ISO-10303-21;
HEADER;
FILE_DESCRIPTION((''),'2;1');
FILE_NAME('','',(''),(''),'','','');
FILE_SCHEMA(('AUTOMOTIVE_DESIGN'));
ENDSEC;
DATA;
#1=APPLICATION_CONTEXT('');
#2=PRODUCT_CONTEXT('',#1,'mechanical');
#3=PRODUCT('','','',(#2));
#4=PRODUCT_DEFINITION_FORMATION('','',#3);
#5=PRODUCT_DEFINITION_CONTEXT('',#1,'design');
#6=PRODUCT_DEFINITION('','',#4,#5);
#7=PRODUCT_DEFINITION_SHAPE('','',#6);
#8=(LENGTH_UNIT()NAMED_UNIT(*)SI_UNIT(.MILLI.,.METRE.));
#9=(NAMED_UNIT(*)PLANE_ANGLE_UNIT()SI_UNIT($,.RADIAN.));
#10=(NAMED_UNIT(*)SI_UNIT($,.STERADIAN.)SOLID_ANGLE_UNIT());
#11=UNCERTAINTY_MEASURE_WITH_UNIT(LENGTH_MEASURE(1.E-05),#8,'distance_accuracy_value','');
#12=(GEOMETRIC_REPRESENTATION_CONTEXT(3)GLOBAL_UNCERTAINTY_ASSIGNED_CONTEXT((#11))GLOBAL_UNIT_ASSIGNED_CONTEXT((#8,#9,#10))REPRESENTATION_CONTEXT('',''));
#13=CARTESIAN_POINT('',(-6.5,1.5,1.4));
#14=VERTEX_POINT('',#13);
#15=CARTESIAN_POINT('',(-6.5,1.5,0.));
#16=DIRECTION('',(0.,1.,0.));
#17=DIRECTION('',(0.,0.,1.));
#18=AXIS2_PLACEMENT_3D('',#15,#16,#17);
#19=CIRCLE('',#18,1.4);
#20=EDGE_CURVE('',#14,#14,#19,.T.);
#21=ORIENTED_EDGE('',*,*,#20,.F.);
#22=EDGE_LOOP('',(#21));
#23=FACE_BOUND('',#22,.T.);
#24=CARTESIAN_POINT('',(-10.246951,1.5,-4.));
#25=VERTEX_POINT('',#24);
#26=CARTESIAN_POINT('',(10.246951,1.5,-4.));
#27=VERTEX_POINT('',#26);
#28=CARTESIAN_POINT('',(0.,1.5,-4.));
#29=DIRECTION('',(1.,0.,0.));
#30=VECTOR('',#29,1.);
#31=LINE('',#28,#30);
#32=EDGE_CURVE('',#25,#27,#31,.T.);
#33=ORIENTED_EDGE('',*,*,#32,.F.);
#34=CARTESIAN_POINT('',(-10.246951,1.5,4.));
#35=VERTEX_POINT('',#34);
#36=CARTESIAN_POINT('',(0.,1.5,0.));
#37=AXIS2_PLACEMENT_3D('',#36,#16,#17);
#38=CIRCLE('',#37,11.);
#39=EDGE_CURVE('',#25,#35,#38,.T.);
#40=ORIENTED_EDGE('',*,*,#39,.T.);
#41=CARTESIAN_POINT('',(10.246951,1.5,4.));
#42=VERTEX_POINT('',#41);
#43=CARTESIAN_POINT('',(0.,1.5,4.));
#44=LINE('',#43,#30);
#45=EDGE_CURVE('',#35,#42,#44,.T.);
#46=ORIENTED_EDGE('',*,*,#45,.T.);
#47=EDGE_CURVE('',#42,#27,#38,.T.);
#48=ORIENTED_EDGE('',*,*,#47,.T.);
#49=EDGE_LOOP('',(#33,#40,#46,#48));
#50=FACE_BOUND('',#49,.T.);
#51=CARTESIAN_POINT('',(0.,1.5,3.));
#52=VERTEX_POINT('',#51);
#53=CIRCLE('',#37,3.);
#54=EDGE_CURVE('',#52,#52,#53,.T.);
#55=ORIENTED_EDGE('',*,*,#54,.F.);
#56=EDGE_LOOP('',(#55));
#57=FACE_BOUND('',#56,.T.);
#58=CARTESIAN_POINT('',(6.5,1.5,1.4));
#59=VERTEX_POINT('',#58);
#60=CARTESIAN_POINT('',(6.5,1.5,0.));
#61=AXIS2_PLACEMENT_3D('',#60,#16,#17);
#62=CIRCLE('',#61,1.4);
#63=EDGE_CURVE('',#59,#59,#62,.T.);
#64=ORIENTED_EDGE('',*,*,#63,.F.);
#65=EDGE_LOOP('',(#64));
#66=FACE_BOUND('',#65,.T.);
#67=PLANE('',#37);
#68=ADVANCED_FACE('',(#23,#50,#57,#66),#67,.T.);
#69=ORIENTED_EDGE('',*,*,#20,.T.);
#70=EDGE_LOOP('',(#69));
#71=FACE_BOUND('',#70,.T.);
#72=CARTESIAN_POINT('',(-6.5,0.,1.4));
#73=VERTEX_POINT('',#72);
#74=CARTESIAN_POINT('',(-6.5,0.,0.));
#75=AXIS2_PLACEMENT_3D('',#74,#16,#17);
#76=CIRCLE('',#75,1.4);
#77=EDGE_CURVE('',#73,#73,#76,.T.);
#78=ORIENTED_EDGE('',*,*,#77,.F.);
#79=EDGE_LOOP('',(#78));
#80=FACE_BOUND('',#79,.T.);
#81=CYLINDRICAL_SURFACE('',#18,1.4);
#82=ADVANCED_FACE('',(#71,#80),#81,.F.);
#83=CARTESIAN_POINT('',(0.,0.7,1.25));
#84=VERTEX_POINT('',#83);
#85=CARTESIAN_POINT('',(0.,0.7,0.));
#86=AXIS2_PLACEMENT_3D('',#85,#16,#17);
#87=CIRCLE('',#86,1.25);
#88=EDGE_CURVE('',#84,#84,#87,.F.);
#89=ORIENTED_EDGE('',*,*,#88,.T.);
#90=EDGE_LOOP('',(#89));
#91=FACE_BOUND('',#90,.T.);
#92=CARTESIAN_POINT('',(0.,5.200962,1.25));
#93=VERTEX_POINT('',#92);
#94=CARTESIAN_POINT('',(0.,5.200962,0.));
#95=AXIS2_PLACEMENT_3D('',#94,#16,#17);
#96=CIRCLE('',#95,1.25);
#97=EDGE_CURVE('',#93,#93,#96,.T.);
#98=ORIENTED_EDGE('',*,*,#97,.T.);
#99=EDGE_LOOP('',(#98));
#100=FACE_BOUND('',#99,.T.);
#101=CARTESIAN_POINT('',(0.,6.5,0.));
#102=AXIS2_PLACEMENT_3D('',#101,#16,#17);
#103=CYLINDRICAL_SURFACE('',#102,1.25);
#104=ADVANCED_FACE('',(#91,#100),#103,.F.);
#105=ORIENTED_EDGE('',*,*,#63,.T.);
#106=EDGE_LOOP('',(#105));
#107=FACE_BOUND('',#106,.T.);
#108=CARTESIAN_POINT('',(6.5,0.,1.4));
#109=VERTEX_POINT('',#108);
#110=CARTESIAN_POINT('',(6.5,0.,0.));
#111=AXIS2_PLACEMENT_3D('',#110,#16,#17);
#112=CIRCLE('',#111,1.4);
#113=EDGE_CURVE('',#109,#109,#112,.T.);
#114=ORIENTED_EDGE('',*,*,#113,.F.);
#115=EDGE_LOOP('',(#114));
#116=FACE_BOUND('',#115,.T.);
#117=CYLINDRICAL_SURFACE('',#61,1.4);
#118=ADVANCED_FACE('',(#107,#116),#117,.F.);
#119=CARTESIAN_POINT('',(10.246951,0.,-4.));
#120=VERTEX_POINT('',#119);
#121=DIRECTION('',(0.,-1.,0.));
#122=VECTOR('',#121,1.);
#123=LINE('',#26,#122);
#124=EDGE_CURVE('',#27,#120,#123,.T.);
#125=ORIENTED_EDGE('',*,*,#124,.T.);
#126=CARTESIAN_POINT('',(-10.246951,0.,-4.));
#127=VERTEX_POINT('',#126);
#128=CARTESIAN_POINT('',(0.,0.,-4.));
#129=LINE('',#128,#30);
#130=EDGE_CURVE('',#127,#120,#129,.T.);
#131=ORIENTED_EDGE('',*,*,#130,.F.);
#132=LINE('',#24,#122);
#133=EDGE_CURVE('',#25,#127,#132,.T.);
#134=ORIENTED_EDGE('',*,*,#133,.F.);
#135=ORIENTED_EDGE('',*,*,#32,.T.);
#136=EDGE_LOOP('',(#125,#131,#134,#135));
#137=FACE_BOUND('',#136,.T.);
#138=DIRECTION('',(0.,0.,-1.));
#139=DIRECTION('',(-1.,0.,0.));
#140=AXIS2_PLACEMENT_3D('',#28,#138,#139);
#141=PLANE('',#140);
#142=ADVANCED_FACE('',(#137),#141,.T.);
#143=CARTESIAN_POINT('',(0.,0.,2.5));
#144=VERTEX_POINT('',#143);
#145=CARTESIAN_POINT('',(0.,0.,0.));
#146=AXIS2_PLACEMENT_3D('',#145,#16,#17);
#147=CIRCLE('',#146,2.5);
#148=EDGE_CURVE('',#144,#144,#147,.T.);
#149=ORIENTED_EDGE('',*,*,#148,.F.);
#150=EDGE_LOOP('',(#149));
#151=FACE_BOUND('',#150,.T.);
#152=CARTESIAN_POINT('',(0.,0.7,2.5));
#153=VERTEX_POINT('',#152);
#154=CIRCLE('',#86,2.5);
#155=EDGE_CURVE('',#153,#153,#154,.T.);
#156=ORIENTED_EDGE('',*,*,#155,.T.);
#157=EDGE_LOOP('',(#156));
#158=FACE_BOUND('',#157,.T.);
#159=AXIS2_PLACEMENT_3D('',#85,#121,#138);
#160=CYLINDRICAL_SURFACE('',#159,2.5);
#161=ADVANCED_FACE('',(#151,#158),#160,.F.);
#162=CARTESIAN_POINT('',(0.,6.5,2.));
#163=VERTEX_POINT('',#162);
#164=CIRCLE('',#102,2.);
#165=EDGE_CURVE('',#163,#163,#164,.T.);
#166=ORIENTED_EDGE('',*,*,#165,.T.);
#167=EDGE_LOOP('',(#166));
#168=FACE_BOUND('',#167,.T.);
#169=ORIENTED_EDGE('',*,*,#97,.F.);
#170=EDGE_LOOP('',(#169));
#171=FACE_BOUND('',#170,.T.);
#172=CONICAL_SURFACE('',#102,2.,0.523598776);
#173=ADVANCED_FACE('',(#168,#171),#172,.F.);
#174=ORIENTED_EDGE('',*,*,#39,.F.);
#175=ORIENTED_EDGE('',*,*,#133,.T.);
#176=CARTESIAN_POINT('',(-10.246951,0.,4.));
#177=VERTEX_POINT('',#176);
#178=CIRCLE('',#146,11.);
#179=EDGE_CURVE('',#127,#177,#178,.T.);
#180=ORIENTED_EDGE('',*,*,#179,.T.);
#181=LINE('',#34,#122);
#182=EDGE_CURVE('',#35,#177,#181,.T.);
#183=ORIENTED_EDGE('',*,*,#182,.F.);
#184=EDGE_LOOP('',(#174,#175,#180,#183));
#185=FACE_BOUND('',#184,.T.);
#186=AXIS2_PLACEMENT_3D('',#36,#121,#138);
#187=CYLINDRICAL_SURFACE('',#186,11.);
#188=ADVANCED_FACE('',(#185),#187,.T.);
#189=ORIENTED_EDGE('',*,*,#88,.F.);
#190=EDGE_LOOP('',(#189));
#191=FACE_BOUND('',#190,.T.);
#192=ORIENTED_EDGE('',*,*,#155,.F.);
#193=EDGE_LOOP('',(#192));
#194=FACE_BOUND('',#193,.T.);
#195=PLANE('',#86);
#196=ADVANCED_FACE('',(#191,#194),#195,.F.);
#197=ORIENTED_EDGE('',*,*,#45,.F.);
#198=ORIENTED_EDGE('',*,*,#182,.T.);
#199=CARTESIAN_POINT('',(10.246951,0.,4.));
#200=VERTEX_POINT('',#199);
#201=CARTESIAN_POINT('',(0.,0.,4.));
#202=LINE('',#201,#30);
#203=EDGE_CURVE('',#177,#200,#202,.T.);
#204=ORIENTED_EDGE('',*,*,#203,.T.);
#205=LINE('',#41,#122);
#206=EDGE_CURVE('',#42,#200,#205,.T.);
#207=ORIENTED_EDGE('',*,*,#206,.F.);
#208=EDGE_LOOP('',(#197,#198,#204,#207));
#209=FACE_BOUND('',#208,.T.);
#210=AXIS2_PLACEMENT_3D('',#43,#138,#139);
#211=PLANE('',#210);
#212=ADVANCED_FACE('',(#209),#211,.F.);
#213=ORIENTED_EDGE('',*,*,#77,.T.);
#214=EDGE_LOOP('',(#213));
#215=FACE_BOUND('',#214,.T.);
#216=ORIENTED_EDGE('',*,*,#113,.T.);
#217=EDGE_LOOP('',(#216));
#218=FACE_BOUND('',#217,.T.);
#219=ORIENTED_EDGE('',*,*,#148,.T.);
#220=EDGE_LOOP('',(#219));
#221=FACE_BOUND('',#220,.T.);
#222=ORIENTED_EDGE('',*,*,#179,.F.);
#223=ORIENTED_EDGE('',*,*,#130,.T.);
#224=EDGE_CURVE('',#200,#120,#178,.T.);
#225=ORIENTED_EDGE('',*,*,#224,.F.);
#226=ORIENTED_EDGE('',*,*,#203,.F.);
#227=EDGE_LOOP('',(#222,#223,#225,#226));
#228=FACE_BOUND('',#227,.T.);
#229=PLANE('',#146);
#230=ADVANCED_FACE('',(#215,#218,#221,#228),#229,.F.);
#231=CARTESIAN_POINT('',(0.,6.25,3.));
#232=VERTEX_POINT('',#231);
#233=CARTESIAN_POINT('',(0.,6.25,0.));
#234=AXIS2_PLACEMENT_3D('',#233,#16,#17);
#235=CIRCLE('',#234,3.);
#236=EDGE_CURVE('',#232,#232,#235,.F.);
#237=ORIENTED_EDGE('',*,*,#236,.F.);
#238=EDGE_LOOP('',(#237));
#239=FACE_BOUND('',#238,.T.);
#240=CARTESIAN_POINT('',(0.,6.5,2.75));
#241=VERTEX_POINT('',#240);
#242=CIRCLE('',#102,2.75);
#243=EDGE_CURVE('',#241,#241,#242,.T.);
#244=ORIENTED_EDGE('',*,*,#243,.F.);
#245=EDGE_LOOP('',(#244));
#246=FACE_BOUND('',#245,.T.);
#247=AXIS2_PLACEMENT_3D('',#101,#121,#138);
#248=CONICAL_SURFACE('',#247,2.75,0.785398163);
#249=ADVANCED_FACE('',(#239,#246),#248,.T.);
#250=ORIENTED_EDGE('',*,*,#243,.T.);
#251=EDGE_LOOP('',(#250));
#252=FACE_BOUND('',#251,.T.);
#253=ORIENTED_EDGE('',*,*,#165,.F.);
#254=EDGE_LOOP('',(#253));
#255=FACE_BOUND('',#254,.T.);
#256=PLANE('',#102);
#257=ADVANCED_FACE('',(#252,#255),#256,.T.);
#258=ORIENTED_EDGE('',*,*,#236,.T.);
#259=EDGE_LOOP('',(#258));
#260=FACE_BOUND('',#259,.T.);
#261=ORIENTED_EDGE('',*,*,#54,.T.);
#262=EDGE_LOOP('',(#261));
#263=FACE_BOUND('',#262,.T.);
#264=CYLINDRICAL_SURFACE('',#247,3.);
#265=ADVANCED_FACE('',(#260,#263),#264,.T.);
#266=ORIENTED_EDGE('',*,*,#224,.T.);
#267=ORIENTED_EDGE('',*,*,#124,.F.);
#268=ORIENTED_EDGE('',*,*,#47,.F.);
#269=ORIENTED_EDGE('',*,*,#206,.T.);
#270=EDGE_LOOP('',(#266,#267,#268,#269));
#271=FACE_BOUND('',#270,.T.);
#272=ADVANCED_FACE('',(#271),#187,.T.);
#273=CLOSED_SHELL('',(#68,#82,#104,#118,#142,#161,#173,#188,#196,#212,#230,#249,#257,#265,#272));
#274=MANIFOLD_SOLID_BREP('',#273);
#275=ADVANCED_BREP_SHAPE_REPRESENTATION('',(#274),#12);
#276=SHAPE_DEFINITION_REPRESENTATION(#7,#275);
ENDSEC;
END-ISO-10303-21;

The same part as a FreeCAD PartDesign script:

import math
import FreeCAD as App
import Part
import Sketcher
from FreeCAD import Vector
Q = App.Units.Quantity


def edges_at(feature, points):
    """Names of the edges that pass closest to the given points."""
    edges = feature.Shape.Edges
    near = lambda p: min(range(len(edges)), key=lambda i: edges[i].distToShape(Part.Vertex(*p))[0])
    return sorted({f"Edge{near(p) + 1}" for p in points})

doc = App.newDocument("Part")
body = doc.addObject("PartDesign::Body", "Body")

sketch1 = doc.addObject("Sketcher::SketchObject", "Sketch")
body.addObject(sketch1)
sketch1.AttachmentSupport = (doc.XZ_Plane, [""])
sketch1.MapMode = "FlatFace"
sketch1.addGeometry([
    Part.ArcOfCircle(Part.Circle(Vector(0, 0, 0), Vector(0, 0, 1), 11), math.radians(159), math.radians(201)),
    Part.LineSegment(Vector(-10, 4, 0), Vector(10, 4, 0)),
    Part.ArcOfCircle(Part.Circle(Vector(0, 0, 0), Vector(0, 0, 1), 11), math.radians(-21), math.radians(21)),
    Part.LineSegment(Vector(10, -4, 0), Vector(-10, -4, 0)),
], False)
sketch1.addConstraint([
    Sketcher.Constraint("Coincident", 0, 1, 1, 1),
    Sketcher.Constraint("Coincident", 1, 2, 2, 2),
    Sketcher.Constraint("Coincident", 2, 1, 3, 1),
    Sketcher.Constraint("Coincident", 3, 2, 0, 2),
    Sketcher.Constraint("Horizontal", 1),
    Sketcher.Constraint("Horizontal", 3),
    Sketcher.Constraint("Coincident", 0, 3, -1, 1),
    Sketcher.Constraint("Coincident", 2, 3, -1, 1),
    Sketcher.Constraint("Equal", 0, 2),
    Sketcher.Constraint("Vertical", 1, 2, 2, 1),
    Sketcher.Constraint("Radius", 0, Q("11 mm")),
    Sketcher.Constraint("DistanceY", -1, 1, 0, 1, Q("4 mm")),
])
pad1 = doc.addObject("PartDesign::Pad", "Pad")
body.addObject(pad1)
pad1.Profile = sketch1
pad1.Length = 1.5
pad1.Reversed = True

sketch2 = doc.addObject("Sketcher::SketchObject", "Sketch001")
body.addObject(sketch2)
sketch2.AttachmentSupport = (doc.XZ_Plane, [""])
sketch2.MapMode = "FlatFace"
sketch2.AttachmentOffset = App.Placement(Vector(0, 0, -1.5), App.Rotation())
sketch2.addGeometry(Part.Circle(Vector(0, 0, 0), Vector(0, 0, 1), 3), False)
sketch2.addConstraint([
    Sketcher.Constraint("Coincident", 0, 3, -1, 1),
    Sketcher.Constraint("Diameter", 0, Q("6 mm")),
])
pad2 = doc.addObject("PartDesign::Pad", "Pad001")
body.addObject(pad2)
pad2.Profile = sketch2
pad2.Length = 5
pad2.Reversed = True

sketch3 = doc.addObject("Sketcher::SketchObject", "Sketch002")
body.addObject(sketch3)
sketch3.AttachmentSupport = (doc.XZ_Plane, [""])
sketch3.MapMode = "FlatFace"
sketch3.AttachmentOffset = App.Placement(Vector(0, 0, -1.5), App.Rotation())
sketch3.addGeometry([
    Part.Circle(Vector(-6.5, 0, 0), Vector(0, 0, 1), 1.4),
    Part.Circle(Vector(6.5, 0, 0), Vector(0, 0, 1), 1.4),
], False)
sketch3.addConstraint([
    Sketcher.Constraint("Equal", 0, 1),
    Sketcher.Constraint("Symmetric", 0, 3, 1, 3, -1, 1),
    Sketcher.Constraint("PointOnObject", 0, 3, -1),
    Sketcher.Constraint("Diameter", 0, Q("2.8 mm")),
    Sketcher.Constraint("DistanceX", 0, 3, 1, 3, Q("13 mm")),
])
doc.recompute()
hole = doc.addObject("PartDesign::Hole", "Hole")
body.addObject(hole)
hole.Profile = sketch3
hole.ThreadType = "None"
hole.Diameter = 2.8
hole.DepthType = "ThroughAll"
hole.Reversed = True
doc.recompute()

chamfer = doc.addObject("PartDesign::Chamfer", "Chamfer")
body.addObject(chamfer)
chamfer.Base = (hole, edges_at(hole, [(-3, 6.5, 0)]))
chamfer.Size = 0.25

sketch4 = doc.addObject("Sketcher::SketchObject", "Sketch003")
body.addObject(sketch4)
sketch4.AttachmentSupport = (doc.XZ_Plane, [""])
sketch4.MapMode = "FlatFace"
sketch4.AttachmentOffset = App.Placement(Vector(0, 0, -6.5), App.Rotation())
sketch4.addGeometry(Part.Circle(Vector(0, 0, 0), Vector(0, 0, 1), 1.2), False)
sketch4.addConstraint([
    Sketcher.Constraint("Coincident", 0, 3, -1, 1),
    Sketcher.Constraint("Diameter", 0, Q("2.5 mm")),
])
doc.recompute()
hole2 = doc.addObject("PartDesign::Hole", "Hole001")
body.addObject(hole2)
hole2.Profile = sketch4
hole2.ThreadType = "None"
hole2.Diameter = 2.5
hole2.DepthType = "Dimension"
hole2.Depth = 6.5
hole2.DrillPoint = "Flat"
hole2.HoleCutType = "Countersink"
hole2.HoleCutDiameter = 4
hole2.HoleCutCountersinkAngle = 60
hole2.Reversed = True

sketch5 = doc.addObject("Sketcher::SketchObject", "Sketch004")
body.addObject(sketch5)
sketch5.AttachmentSupport = (doc.XZ_Plane, [""])
sketch5.MapMode = "FlatFace"
sketch5.addGeometry(Part.Circle(Vector(0, 0, 0), Vector(0, 0, 1), 2.5), False)
sketch5.addConstraint([
    Sketcher.Constraint("Coincident", 0, 3, -1, 1),
    Sketcher.Constraint("Diameter", 0, Q("5 mm")),
])
pocket1 = doc.addObject("PartDesign::Pocket", "Pocket")
body.addObject(pocket1)
pocket1.Profile = sketch5
pocket1.Length = 0.7

doc.recompute()
